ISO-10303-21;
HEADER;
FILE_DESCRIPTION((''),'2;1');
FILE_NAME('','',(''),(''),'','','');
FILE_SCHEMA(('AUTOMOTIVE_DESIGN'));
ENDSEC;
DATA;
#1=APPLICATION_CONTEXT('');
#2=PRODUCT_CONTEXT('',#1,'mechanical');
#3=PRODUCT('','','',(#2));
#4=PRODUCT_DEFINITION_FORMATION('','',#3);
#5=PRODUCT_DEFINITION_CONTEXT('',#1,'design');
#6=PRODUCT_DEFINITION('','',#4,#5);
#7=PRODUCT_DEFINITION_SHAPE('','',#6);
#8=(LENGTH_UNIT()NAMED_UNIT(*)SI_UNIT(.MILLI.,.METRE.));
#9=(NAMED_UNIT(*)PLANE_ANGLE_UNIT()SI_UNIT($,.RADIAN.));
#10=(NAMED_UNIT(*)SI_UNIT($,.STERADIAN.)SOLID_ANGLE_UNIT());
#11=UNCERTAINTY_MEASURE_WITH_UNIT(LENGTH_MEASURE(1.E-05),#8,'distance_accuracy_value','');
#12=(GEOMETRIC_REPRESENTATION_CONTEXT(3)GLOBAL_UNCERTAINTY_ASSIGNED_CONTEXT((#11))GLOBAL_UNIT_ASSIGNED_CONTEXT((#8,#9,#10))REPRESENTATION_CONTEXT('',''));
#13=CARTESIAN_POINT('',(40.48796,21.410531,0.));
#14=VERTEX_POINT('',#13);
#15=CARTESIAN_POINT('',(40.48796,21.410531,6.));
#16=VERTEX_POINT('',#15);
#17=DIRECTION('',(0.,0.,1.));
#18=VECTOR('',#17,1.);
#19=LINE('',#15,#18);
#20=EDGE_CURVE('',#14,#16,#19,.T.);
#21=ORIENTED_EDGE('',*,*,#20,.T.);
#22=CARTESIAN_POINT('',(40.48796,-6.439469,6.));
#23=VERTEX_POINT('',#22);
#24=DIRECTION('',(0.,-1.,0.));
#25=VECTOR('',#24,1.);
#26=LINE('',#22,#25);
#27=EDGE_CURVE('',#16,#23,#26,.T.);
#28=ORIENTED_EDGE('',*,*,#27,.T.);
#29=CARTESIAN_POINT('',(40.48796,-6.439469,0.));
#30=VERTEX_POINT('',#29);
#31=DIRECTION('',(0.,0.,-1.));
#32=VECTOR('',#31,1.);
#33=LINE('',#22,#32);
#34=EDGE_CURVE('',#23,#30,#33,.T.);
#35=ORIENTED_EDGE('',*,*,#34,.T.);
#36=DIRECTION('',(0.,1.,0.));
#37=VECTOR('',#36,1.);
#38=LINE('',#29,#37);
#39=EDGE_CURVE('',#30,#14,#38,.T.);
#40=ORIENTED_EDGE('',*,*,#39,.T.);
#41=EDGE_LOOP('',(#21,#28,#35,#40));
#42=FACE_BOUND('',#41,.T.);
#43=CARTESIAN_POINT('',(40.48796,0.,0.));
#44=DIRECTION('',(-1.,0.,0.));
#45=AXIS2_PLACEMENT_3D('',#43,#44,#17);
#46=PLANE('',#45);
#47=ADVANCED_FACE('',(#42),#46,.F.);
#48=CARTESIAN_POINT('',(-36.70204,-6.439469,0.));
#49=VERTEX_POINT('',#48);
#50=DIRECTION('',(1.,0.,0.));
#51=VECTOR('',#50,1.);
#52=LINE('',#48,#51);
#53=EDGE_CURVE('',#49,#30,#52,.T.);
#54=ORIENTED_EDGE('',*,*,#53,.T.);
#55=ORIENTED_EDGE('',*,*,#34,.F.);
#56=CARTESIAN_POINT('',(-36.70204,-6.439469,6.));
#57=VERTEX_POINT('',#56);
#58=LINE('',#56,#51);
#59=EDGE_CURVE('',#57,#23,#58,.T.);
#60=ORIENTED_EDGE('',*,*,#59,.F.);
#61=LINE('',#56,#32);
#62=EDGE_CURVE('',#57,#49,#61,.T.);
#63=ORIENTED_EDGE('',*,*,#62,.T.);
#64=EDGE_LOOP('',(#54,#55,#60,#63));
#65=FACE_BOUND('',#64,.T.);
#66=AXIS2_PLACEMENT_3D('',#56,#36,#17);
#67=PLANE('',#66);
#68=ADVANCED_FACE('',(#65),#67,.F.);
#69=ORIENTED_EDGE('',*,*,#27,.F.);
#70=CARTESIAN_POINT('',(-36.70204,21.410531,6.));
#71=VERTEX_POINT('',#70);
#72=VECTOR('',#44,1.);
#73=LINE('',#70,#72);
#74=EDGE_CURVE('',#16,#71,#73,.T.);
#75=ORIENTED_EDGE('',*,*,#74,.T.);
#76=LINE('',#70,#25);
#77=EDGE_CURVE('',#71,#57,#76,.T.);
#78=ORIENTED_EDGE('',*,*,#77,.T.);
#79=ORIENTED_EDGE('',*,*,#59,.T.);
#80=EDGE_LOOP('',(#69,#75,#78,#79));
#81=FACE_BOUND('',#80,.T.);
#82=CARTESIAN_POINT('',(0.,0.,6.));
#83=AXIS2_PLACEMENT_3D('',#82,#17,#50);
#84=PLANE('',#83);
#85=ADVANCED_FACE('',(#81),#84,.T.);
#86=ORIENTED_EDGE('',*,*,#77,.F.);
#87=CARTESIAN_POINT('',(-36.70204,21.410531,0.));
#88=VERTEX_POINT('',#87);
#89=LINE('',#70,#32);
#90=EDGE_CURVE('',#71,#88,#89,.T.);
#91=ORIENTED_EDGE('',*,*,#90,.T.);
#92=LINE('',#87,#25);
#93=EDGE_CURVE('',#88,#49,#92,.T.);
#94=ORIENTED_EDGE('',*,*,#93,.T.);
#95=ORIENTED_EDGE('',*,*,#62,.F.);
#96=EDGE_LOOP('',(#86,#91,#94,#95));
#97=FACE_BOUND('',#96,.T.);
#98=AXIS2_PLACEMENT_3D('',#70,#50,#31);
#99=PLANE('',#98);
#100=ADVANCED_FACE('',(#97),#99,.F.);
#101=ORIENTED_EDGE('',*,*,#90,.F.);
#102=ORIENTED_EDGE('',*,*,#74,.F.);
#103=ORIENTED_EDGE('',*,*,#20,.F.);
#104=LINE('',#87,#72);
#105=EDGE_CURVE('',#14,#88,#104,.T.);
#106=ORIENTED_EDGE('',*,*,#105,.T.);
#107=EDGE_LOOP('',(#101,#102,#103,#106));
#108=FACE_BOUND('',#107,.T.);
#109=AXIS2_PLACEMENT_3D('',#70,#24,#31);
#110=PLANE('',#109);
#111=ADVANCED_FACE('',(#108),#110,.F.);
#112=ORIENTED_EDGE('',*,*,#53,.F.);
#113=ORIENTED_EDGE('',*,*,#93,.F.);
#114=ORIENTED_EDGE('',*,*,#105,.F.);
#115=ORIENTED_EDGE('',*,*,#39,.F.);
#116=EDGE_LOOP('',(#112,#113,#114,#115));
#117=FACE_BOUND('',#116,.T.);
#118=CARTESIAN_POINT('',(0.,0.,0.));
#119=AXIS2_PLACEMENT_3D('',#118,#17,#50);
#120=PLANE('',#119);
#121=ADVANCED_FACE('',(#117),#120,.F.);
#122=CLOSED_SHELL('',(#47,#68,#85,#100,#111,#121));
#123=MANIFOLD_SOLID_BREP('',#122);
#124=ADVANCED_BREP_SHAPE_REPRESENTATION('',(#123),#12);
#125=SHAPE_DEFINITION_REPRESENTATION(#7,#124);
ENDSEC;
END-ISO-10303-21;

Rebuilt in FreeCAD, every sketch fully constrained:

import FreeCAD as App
import Part
import Sketcher

V = App.Vector


def add_polygon(sketch, points):
    """Adds a closed chain of lines whose ends are joined by coincident constraints."""
    first, n = sketch.GeometryCount, len(points)
    for a, b in zip(points, points[1:] + points[:1]):
        sketch.addGeometry(Part.LineSegment(App.Vector(*a, 0), App.Vector(*b, 0)), False)
    for i in range(n):
        sketch.addConstraint(Sketcher.Constraint("Coincident", first + i, 2, first + (i + 1) % n, 1))

doc = App.newDocument("Part")
params = doc.addObject("Spreadsheet::Sheet", "Params")
for row, (alias, value) in enumerate([
    ("sketch1_width", "75.19 mm"),
    ("sketch1_height", "27.85 mm"),
    ("pad1_length", "6 mm"),
    ("sketch2_height", "6 mm"),
    ("sketch2_width", "27.85 mm"),
    ("pad2_length", "2 mm"),
], start=1):
    params.set(f"A{row}", alias)
    params.set(f"B{row}", "=" + value)
    params.setAlias(f"B{row}", alias)

body = doc.addObject("PartDesign::Body", "Body")

sketch1 = body.newObject("Sketcher::SketchObject", "Sketch")
sketch1.AttachmentSupport = (doc.getObject("XY_Plane"), [""])
sketch1.MapMode = "FlatFace"
add_polygon(sketch1, [(-37, 21), (-37, -6), (38, -6), (38, 21)])
sketch1.addConstraint(Sketcher.Constraint("Vertical", 0))
sketch1.addConstraint(Sketcher.Constraint("Horizontal", 1))
sketch1.addConstraint(Sketcher.Constraint("Vertical", 2))
sketch1.addConstraint(Sketcher.Constraint("Horizontal", 3))
sketch1.addConstraint(Sketcher.Constraint("DistanceX", 1, 1, 1, 2, 75.19))
sketch1.addConstraint(Sketcher.Constraint("DistanceY", 0, 2, 0, 1, 27.85))
sketch1.addConstraint(Sketcher.Constraint("DistanceX", 0, 2, -1, 1, 36.70204))
sketch1.addConstraint(Sketcher.Constraint("DistanceY", 0, 2, -1, 1, 6.439469))
sketch1.setExpression("Constraints[8]", "Params.sketch1_width")
sketch1.setExpression("Constraints[9]", "Params.sketch1_height")
pad1 = body.newObject("PartDesign::Pad", "Pad")
pad1.Profile = sketch1
pad1.setExpression("Length", "Params.pad1_length")

sketch2 = body.newObject("Sketcher::SketchObject", "Sketch001")
sketch2.AttachmentSupport = (doc.getObject("YZ_Plane"), [""])
sketch2.MapMode = "FlatFace"
sketch2.AttachmentOffset = App.Placement(V(0, 0, 38.48796), App.Rotation())
add_polygon(sketch2, [(21, 6), (-6, 6), (-6, 0), (21, 0)])
sketch2.addConstraint(Sketcher.Constraint("Horizontal", 0))
sketch2.addConstraint(Sketcher.Constraint("Vertical", 1))
sketch2.addConstraint(Sketcher.Constraint("Horizontal", 2))
sketch2.addConstraint(Sketcher.Constraint("Vertical", 3))
sketch2.addConstraint(Sketcher.Constraint("PointOnObject", 1, 2, -1))
sketch2.addConstraint(Sketcher.Constraint("DistanceY", 1, 2, 1, 1, 6.0))
sketch2.addConstraint(Sketcher.Constraint("DistanceX", 0, 2, 0, 1, 27.85))
sketch2.addConstraint(Sketcher.Constraint("DistanceX", 0, 2, -1, 1, 6.439469))
sketch2.setExpression("Constraints[9]", "Params.sketch2_height")
sketch2.setExpression("Constraints[10]", "Params.sketch2_width")
pad2 = body.newObject("PartDesign::Pad", "Pad001")
pad2.Profile = sketch2
pad2.setExpression("Length", "Params.pad2_length")

doc.recompute()
